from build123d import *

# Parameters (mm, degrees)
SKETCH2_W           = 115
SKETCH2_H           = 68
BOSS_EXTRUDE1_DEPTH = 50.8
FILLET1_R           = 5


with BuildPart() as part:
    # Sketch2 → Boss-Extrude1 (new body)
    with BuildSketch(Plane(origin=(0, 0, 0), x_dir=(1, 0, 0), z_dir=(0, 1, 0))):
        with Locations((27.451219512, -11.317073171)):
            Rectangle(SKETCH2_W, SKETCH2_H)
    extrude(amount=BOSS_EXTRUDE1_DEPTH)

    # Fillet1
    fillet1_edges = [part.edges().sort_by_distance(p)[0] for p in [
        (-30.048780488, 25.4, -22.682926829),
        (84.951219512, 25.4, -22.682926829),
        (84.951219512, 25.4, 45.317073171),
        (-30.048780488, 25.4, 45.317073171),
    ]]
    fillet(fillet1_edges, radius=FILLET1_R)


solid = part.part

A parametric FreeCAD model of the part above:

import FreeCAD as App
import Part
import Sketcher
Q = App.Units.Quantity


def edges_at(feature, points):
    """Names of the edges that pass closest to the given points."""
    edges = feature.Shape.Edges
    near = lambda p: min(range(len(edges)), key=lambda i: edges[i].distToShape(Part.Vertex(*p))[0])
    return sorted({f"Edge{near(p) + 1}" for p in points})


def add_polygon(sketch, points):
    """Adds a closed chain of lines whose ends are joined by coincident constraints."""
    first, n = sketch.GeometryCount, len(points)
    for a, b in zip(points, points[1:] + points[:1]):
        sketch.addGeometry(Part.LineSegment(App.Vector(*a, 0), App.Vector(*b, 0)), False)
    for i in range(n):
        sketch.addConstraint(Sketcher.Constraint("Coincident", first + i, 2, first + (i + 1) % n, 1))

doc = App.newDocument("Part")
body = doc.addObject("PartDesign::Body", "Body")

# Sketch on XZ plane
sketch1 = body.newObject("Sketcher::SketchObject", "Sketch")
sketch1.AttachmentSupport = (doc.getObject("XZ_Plane"), [""])
sketch1.MapMode = "FlatFace"
add_polygon(sketch1, [(-30.04878, -22.682927), (-30.04878, 45.317073), (84.95122, 45.317073), (84.95122, -22.682927)])  # lines 0-3
sketch1.addConstraint([
    Sketcher.Constraint("Vertical", 0),
    Sketcher.Constraint("Horizontal", 1),
    Sketcher.Constraint("Vertical", 2),
    Sketcher.Constraint("Horizontal", 3),
    Sketcher.Constraint("DistanceX", 1, 1, 1, 2, Q("115 mm")),
    Sketcher.Constraint("DistanceY", 0, 1, 0, 2, Q("68 mm")),
    Sketcher.Constraint("DistanceX", 0, 2, -1, 1, Q("30.04878 mm")),
    Sketcher.Constraint("DistanceY", -1, 1, 0, 2, Q("45.317073 mm")),
])
pad1 = body.newObject("PartDesign::Pad", "Pad")
pad1.Profile = sketch1
pad1.Length = 50.8
pad1.Reversed = True
doc.recompute()

fillet = body.newObject("PartDesign::Fillet", "Fillet")
fillet.Base = (pad1, edges_at(pad1, [
    (-30.049, 25.4, -22.683),
    (84.951, 25.4, -22.683),
    (84.951, 25.4, 45.317),
    (-30.049, 25.4, 45.317),
]))
fillet.Radius = 5

doc.recompute()
